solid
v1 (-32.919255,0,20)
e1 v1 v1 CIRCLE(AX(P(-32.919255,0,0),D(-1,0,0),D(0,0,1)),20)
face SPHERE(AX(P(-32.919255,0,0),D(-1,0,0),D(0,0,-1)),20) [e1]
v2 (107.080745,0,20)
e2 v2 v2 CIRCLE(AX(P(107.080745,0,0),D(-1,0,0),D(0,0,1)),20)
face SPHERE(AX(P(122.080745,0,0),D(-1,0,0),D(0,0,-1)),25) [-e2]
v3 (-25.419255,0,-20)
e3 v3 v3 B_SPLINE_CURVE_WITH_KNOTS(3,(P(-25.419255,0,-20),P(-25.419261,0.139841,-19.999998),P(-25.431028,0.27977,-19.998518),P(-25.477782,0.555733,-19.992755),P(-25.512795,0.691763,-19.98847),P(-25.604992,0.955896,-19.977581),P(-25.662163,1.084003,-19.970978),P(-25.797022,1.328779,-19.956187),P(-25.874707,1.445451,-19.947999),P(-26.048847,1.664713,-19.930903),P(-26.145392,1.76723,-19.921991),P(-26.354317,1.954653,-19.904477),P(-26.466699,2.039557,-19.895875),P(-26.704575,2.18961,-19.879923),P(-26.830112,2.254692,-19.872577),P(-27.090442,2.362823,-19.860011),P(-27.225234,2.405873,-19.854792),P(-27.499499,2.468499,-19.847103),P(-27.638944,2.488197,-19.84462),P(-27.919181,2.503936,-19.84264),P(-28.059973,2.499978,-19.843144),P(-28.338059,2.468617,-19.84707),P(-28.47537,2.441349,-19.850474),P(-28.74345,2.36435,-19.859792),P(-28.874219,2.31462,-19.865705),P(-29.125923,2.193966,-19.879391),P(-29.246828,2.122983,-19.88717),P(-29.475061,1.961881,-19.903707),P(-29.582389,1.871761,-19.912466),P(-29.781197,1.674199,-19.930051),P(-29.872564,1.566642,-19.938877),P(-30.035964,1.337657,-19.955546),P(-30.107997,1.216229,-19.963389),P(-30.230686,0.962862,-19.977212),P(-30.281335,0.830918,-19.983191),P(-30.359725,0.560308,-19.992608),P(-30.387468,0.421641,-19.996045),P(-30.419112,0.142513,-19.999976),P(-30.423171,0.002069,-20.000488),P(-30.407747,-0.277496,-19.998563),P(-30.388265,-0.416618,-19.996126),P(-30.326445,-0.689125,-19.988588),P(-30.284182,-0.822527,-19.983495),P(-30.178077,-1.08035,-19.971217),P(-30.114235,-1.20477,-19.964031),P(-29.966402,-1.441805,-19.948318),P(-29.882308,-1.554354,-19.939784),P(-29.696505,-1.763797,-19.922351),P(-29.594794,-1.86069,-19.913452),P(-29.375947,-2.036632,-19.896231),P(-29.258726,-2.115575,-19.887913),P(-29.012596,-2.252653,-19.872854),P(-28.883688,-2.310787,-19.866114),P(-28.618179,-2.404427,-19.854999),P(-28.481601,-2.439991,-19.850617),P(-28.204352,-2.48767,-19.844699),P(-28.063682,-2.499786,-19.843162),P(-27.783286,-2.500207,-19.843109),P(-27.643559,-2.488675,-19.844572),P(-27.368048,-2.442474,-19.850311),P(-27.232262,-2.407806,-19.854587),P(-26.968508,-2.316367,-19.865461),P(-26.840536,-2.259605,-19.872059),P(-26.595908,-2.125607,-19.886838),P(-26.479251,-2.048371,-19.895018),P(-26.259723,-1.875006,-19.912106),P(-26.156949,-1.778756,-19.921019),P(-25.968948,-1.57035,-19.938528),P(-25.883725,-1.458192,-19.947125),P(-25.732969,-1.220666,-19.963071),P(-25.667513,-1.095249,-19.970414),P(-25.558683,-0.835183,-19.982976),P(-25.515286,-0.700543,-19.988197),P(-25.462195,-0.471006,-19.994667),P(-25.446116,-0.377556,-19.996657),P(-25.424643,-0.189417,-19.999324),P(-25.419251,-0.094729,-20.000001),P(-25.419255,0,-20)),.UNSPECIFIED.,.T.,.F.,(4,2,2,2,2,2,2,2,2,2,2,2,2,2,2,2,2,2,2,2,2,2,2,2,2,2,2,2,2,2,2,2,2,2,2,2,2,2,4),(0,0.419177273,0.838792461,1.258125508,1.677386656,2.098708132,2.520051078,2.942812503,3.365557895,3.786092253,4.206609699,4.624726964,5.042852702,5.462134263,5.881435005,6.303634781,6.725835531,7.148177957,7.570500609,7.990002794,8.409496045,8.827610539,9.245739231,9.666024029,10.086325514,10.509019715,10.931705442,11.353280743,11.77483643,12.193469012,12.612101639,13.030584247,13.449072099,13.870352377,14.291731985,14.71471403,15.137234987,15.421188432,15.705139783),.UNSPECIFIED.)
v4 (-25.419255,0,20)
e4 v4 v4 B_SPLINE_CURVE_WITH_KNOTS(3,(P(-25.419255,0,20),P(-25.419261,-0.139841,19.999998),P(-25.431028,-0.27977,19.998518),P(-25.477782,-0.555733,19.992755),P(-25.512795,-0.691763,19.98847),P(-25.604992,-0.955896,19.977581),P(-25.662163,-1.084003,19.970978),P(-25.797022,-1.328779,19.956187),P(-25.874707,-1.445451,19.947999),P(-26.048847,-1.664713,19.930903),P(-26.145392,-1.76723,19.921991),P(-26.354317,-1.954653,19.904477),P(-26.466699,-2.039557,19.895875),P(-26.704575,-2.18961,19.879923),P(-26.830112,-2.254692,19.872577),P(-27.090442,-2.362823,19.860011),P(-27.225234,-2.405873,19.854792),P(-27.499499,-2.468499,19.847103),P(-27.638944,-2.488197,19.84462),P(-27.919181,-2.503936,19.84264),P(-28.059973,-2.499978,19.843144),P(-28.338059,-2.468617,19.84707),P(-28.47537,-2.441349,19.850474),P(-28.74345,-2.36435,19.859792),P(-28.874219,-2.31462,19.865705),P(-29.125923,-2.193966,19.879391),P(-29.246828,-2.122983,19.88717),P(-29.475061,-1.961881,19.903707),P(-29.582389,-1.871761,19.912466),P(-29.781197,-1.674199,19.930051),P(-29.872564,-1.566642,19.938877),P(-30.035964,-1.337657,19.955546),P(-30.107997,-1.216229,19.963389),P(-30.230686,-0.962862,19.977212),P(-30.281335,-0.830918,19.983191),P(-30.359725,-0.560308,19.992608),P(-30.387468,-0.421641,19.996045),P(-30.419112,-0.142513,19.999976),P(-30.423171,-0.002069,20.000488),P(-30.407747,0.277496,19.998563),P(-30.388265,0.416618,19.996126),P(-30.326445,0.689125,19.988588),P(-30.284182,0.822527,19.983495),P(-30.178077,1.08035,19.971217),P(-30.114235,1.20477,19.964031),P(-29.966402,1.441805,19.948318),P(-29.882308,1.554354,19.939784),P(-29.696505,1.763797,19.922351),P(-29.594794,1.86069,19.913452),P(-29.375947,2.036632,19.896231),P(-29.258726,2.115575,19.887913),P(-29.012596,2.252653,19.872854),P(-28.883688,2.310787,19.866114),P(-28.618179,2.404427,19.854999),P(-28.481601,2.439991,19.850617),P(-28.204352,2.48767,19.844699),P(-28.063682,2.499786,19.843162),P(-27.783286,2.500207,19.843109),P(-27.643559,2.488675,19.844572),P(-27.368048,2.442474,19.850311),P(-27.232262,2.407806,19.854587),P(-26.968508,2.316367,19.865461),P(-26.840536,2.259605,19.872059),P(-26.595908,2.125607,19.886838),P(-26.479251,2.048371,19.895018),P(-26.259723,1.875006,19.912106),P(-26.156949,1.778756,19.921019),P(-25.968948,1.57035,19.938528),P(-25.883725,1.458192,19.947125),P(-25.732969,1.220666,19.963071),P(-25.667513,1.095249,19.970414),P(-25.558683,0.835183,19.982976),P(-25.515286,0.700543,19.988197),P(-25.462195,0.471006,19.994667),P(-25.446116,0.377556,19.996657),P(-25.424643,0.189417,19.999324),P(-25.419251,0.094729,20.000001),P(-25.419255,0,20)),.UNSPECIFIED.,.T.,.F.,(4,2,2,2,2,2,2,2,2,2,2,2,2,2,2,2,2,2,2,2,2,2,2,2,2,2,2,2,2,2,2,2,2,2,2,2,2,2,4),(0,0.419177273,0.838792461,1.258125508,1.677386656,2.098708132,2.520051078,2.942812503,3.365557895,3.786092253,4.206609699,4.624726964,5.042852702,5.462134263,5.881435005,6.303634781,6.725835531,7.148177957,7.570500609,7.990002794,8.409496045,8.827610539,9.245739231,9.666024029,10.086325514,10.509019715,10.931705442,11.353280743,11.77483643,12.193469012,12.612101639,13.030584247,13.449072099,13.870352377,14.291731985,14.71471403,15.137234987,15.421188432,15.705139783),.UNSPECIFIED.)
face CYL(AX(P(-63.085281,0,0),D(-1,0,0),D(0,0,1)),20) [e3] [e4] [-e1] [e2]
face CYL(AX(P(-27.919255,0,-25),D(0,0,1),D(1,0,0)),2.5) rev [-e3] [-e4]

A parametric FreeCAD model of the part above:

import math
import FreeCAD as App
import Part
import Sketcher

doc = App.newDocument("Part")
body = doc.addObject("PartDesign::Body", "Body")

sketch1 = body.newObject("Sketcher::SketchObject", "Sketch")
sketch1.AttachmentSupport = (doc.getObject("XZ_Plane"), [""])
sketch1.MapMode = "FlatFace"
sketch1.addGeometry([
    Part.LineSegment(App.Vector(107, -20, 0), App.Vector(-33, -20, 0)),
    Part.ArcOfCircle(Part.Circle(App.Vector(-33, 0, 0), App.Vector(0, 0, 1), 20), math.radians(180), math.radians(270)),
    Part.LineSegment(App.Vector(-53, 0, 0), App.Vector(147, 0, 0)),
    Part.ArcOfCircle(Part.Circle(App.Vector(122, 0, 0), App.Vector(0, 0, 1), 25), math.radians(-127), math.radians(0)),
], False)
sketch1.addConstraint([
    Sketcher.Constraint("Tangent", 0, 2, 1, 2),
    Sketcher.Constraint("Coincident", 1, 1, 2, 1),
    Sketcher.Constraint("Coincident", 2, 2, 3, 2),
    Sketcher.Constraint("Coincident", 3, 1, 0, 1),
    Sketcher.Constraint("Horizontal", 0),
    Sketcher.Constraint("Horizontal", 2),
    Sketcher.Constraint("PointOnObject", 1, 3, -1),
    Sketcher.Constraint("PointOnObject", 3, 3, -1),
    Sketcher.Constraint("PointOnObject", 1, 1, -1),
    Sketcher.Constraint("Radius", 1, 20.0),
    Sketcher.Constraint("Radius", 3, 25.0),
    Sketcher.Constraint("DistanceX", 0, 2, 0, 1, 140.0),
    Sketcher.Constraint("DistanceX", 1, 3, -1, 1, 32.919255),
])
revolution = body.newObject("PartDesign::Revolution", "Revolution")
revolution.Profile = sketch1
revolution.ReferenceAxis = (sketch1, ["H_Axis"])
revolution.Angle = 360

sketch2 = body.newObject("Sketcher::SketchObject", "Sketch001")
sketch2.AttachmentSupport = (doc.getObject("XY_Plane"), [""])
sketch2.MapMode = "FlatFace"
sketch2.addGeometry(Part.Circle(App.Vector(-27.9, 0, 0), App.Vector(0, 0, 1), 2.5), False)
sketch2.addConstraint([
    Sketcher.Constraint("PointOnObject", 0, 3, -1),
    Sketcher.Constraint("Diameter", 0, 5.0),
    Sketcher.Constraint("DistanceX", 0, 3, -1, 1, 27.919255),
])
pocket1 = body.newObject("PartDesign::Pocket", "Pocket")
pocket1.Profile = sketch2
pocket1.Type = "ThroughAll"
pocket1.Midplane = True

doc.recompute()
